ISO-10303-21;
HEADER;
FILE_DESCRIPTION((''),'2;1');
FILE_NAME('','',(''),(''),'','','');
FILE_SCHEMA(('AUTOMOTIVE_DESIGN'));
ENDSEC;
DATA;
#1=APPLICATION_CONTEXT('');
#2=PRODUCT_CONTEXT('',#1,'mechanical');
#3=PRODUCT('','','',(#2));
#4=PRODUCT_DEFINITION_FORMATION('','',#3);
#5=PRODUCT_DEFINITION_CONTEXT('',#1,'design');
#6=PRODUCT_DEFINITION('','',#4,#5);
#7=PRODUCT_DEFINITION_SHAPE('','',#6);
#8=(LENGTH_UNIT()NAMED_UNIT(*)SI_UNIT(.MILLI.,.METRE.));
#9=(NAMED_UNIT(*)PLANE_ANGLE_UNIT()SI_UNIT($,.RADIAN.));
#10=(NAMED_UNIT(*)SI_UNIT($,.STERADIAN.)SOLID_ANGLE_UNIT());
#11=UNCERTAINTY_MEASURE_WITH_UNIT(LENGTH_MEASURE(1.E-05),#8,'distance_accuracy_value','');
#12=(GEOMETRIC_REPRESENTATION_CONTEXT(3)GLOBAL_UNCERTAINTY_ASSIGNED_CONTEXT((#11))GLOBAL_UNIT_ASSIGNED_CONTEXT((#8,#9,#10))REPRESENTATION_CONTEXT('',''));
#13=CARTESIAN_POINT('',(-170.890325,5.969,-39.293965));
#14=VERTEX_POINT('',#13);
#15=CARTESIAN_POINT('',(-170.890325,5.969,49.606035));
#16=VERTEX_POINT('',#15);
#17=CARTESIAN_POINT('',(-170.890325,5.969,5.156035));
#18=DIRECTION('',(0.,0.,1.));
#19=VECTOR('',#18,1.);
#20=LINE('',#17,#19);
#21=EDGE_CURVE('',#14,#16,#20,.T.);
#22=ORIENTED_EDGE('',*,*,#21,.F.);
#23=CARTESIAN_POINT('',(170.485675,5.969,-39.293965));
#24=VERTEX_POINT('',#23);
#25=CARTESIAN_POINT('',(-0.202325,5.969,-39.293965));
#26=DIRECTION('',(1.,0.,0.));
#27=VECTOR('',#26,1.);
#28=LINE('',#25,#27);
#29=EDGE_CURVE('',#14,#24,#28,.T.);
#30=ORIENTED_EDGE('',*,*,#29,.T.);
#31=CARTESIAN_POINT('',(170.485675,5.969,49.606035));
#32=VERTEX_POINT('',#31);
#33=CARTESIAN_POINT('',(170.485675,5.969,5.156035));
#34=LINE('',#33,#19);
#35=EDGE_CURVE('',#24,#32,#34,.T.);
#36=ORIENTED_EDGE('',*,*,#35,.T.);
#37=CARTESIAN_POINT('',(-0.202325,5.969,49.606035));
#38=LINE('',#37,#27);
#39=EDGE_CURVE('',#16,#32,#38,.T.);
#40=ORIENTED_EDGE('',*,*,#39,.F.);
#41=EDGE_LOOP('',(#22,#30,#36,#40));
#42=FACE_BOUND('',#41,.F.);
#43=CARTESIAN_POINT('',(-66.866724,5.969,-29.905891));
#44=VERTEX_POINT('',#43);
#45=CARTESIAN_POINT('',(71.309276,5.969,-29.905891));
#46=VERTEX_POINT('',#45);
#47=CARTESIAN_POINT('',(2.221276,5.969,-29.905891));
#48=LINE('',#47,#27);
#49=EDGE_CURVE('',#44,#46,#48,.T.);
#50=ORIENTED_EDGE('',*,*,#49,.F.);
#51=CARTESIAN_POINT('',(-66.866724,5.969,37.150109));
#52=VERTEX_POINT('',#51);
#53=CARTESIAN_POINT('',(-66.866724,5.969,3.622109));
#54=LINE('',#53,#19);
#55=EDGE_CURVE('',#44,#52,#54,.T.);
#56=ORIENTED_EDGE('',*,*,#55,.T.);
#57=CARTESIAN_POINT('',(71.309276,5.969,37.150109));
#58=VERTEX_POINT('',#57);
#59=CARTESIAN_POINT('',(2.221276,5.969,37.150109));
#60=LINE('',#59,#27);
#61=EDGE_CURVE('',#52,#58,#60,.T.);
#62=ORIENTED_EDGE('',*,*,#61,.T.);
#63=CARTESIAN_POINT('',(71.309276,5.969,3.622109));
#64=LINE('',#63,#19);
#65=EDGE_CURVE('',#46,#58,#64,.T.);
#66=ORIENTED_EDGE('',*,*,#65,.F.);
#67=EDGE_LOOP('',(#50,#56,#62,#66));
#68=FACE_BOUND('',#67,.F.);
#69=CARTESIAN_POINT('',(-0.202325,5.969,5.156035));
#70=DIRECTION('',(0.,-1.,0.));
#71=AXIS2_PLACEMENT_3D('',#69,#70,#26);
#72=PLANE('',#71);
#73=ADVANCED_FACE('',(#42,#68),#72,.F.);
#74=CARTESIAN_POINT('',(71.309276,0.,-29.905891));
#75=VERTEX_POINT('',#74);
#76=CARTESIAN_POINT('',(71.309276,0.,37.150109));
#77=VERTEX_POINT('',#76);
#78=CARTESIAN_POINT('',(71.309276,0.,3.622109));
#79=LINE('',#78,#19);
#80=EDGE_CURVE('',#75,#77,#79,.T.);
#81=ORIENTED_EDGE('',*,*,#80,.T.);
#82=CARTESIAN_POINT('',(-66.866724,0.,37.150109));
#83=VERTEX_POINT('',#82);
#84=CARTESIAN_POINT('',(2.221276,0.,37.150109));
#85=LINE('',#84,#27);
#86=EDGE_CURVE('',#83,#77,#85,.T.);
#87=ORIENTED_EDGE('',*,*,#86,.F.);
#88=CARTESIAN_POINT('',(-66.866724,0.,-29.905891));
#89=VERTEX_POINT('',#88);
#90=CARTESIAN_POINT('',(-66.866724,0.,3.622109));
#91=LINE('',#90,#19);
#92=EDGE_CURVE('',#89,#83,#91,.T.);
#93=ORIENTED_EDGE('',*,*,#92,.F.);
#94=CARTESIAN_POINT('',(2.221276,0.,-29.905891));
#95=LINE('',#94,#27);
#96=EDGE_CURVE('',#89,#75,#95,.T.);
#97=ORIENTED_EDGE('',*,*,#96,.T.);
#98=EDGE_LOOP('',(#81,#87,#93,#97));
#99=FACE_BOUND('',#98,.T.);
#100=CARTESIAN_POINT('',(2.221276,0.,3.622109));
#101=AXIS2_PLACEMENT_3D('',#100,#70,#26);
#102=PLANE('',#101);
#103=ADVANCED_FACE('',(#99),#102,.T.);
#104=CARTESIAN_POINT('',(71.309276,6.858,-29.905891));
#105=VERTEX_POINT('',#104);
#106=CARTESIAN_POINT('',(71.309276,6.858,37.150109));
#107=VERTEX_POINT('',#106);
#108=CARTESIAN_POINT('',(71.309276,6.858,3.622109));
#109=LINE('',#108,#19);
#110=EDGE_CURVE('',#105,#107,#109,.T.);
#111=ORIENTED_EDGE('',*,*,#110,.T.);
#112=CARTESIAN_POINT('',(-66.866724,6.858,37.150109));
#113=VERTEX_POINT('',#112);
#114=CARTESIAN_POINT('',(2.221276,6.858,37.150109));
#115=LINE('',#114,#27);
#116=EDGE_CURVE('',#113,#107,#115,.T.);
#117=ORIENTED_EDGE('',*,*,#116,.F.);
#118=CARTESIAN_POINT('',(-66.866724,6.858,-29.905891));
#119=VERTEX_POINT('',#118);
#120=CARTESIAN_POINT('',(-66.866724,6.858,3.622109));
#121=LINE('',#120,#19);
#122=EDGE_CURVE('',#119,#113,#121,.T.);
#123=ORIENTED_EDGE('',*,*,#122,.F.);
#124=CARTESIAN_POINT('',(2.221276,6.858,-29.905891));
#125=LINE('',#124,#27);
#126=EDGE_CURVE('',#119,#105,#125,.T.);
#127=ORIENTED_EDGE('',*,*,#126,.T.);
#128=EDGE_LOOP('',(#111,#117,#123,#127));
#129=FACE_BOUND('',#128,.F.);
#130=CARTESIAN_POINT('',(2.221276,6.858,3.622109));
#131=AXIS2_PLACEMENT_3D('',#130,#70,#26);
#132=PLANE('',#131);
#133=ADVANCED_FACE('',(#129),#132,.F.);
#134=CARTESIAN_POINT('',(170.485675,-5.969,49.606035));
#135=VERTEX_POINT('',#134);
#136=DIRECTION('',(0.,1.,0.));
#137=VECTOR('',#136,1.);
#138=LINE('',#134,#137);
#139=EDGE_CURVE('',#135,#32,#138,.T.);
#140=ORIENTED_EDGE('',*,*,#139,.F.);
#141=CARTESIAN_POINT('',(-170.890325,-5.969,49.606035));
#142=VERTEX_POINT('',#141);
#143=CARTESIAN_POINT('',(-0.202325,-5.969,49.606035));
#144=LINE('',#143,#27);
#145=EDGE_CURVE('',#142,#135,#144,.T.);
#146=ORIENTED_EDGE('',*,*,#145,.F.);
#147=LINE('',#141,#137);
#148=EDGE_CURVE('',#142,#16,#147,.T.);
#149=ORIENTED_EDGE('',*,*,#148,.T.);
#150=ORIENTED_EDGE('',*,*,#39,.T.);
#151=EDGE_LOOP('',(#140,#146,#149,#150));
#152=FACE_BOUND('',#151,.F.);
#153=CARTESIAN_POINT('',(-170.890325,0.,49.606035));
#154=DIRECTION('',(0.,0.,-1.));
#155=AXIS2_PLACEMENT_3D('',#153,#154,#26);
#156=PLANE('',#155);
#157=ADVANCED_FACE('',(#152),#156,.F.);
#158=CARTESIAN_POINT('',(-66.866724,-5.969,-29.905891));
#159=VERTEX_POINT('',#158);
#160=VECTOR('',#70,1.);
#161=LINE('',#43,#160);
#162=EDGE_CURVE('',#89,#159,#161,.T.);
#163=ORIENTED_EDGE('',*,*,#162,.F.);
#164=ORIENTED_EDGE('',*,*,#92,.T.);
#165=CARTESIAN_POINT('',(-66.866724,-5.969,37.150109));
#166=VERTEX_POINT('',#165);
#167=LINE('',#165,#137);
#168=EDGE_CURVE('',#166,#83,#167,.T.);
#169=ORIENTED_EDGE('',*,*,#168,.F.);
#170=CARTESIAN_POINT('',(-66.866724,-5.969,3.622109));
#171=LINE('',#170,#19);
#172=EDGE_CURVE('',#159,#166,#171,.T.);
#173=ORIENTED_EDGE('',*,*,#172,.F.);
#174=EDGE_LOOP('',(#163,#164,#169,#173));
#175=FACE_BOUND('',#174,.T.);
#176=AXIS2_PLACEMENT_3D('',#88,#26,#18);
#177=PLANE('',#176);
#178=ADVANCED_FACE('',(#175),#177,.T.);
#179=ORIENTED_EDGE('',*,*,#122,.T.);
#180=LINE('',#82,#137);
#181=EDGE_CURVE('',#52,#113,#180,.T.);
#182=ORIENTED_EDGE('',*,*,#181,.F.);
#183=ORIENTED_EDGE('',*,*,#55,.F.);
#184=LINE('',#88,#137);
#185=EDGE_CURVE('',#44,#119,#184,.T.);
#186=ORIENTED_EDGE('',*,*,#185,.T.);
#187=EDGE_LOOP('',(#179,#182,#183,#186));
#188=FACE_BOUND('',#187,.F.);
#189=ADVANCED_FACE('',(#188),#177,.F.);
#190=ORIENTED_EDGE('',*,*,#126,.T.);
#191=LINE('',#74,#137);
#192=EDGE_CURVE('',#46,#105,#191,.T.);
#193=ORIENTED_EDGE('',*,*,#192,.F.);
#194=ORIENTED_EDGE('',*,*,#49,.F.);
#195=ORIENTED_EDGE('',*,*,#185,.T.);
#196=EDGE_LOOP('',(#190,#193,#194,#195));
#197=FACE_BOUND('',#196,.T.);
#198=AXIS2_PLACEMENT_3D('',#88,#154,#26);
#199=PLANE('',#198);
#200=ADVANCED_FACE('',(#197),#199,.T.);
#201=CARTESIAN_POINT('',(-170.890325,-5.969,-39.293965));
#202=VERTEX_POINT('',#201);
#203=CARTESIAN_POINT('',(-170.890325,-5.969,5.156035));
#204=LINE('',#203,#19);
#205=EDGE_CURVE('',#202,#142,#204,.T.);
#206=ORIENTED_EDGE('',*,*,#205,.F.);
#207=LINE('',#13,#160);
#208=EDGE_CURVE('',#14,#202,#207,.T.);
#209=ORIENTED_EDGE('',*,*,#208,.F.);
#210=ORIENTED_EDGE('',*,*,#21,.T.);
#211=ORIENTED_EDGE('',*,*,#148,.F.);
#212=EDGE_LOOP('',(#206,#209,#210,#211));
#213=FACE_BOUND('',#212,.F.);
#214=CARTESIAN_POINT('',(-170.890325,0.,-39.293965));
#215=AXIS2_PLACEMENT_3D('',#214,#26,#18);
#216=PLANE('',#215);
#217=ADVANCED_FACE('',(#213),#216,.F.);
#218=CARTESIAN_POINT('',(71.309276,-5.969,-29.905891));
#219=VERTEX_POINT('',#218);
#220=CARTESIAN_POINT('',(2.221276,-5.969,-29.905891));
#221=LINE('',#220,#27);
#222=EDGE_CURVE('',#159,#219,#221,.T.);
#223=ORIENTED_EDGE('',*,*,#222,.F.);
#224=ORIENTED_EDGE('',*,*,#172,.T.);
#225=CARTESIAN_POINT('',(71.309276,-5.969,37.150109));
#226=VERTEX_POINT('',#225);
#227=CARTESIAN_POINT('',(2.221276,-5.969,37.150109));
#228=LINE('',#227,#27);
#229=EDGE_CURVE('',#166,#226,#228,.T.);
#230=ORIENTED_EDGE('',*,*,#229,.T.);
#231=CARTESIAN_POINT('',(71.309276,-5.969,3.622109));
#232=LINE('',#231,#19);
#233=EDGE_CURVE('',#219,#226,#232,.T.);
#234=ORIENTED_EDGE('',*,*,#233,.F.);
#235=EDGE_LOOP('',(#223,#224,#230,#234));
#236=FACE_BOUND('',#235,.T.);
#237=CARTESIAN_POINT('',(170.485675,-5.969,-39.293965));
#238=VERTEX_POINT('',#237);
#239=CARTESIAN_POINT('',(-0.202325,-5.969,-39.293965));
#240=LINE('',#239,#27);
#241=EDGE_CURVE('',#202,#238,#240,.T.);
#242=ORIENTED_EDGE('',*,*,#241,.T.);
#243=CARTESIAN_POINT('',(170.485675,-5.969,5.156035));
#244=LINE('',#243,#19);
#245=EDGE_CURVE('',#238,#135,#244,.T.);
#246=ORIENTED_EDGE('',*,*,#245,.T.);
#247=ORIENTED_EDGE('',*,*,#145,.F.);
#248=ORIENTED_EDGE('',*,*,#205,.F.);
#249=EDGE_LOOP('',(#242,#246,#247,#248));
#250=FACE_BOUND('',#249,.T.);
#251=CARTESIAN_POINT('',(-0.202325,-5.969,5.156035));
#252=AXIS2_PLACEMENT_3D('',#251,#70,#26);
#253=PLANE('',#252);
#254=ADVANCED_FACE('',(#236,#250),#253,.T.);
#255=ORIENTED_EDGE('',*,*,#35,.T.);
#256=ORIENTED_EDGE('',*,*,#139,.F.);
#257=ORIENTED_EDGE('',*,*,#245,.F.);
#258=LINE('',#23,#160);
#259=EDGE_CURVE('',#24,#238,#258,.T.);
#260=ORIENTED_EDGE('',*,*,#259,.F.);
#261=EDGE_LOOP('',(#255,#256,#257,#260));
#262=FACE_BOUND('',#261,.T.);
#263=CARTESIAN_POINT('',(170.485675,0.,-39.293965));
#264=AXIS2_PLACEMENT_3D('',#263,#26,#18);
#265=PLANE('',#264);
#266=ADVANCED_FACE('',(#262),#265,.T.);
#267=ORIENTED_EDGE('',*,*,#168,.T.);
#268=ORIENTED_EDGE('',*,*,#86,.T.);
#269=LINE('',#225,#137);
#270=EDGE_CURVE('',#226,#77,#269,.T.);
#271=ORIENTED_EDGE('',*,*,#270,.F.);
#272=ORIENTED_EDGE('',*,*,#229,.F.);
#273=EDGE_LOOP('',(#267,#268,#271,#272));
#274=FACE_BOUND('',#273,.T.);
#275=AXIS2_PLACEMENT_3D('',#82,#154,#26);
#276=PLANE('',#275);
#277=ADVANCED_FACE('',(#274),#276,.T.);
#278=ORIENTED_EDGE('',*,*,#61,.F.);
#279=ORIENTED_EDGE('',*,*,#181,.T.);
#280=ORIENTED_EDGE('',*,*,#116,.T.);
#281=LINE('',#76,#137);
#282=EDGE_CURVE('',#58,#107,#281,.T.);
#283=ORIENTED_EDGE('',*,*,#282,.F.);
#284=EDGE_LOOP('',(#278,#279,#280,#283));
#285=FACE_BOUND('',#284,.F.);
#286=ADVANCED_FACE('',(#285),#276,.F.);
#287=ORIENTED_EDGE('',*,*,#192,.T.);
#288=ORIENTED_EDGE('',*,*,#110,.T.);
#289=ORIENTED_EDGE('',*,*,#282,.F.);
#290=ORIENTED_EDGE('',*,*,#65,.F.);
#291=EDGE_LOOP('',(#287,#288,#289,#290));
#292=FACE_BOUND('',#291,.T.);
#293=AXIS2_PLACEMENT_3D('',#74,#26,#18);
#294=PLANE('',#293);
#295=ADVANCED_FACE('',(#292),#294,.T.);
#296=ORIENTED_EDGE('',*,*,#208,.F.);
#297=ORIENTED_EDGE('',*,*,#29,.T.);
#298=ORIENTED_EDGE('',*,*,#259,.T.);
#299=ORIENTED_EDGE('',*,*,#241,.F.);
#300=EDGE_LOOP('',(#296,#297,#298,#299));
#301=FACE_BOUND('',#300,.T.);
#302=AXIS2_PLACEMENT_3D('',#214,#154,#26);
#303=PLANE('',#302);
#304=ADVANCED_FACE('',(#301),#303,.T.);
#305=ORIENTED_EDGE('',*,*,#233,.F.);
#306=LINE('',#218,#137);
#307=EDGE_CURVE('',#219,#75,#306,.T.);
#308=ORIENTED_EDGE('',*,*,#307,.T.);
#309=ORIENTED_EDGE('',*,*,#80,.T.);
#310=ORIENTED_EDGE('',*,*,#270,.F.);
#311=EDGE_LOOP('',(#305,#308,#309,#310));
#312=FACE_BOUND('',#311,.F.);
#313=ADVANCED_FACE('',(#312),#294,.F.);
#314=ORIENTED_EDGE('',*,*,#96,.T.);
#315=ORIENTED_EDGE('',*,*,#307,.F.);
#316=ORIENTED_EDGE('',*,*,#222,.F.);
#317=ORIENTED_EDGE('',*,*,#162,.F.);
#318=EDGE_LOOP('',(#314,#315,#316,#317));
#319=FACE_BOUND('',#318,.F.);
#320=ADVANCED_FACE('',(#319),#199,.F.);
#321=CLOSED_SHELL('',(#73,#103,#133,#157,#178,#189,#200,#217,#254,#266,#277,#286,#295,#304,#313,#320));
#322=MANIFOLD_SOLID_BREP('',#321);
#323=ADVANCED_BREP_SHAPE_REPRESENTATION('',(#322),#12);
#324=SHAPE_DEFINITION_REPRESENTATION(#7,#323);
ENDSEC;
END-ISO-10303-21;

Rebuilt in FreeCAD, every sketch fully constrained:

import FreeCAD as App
import Part
import Sketcher

V = App.Vector
Q = App.Units.Quantity

doc = App.newDocument("Part")
body = doc.addObject("PartDesign::Body", "Body")

# Sketch on XZ plane
sketch1 = body.newObject("Sketcher::SketchObject", "Sketch")
sketch1.AttachmentSupport = (doc.getObject("XZ_Plane"), [""])
sketch1.MapMode = "FlatFace"
sketch1.addGeometry([
    Part.LineSegment(V(-170.890325, 49.606035, 0), V(-170.890325, -39.293965, 0)),  # 0
    Part.LineSegment(V(-170.890325, -39.293965, 0), V(170.485675, -39.293965, 0)),  # 1
    Part.LineSegment(V(170.485675, -39.293965, 0), V(170.485675, 49.606035, 0)),  # 2
    Part.LineSegment(V(170.485675, 49.606035, 0), V(-170.890325, 49.606035, 0)),  # 3
    Part.LineSegment(V(71.309276, -29.905891, 0), V(-66.866724, -29.905891, 0)),  # 4
    Part.LineSegment(V(-66.866724, -29.905891, 0), V(-66.866724, 37.150109, 0)),  # 5
    Part.LineSegment(V(-66.866724, 37.150109, 0), V(71.309276, 37.150109, 0)),  # 6
    Part.LineSegment(V(71.309276, 37.150109, 0), V(71.309276, -29.905891, 0)),  # 7
], False)
sketch1.addConstraint([
    Sketcher.Constraint("Coincident", 0, 2, 1, 1),
    Sketcher.Constraint("Coincident", 1, 2, 2, 1),
    Sketcher.Constraint("Coincident", 2, 2, 3, 1),
    Sketcher.Constraint("Coincident", 3, 2, 0, 1),
    Sketcher.Constraint("Coincident", 4, 2, 5, 1),
    Sketcher.Constraint("Coincident", 5, 2, 6, 1),
    Sketcher.Constraint("Coincident", 6, 2, 7, 1),
    Sketcher.Constraint("Coincident", 7, 2, 4, 1),
    Sketcher.Constraint("Vertical", 0),
    Sketcher.Constraint("Horizontal", 1),
    Sketcher.Constraint("Vertical", 2),
    Sketcher.Constraint("Horizontal", 3),
    Sketcher.Constraint("Horizontal", 4),
    Sketcher.Constraint("Vertical", 5),
    Sketcher.Constraint("Horizontal", 6),
    Sketcher.Constraint("Vertical", 7),
    Sketcher.Constraint("DistanceY", 0, 2, 0, 1, Q("3.5 in")),
    Sketcher.Constraint("DistanceX", 1, 1, 1, 2, Q("13.44 in")),
    Sketcher.Constraint("DistanceX", 4, 2, 4, 1, Q("5.44 in")),
    Sketcher.Constraint("DistanceY", 5, 1, 5, 2, Q("2.64 in")),
    Sketcher.Constraint("DistanceX", 0, 2, 4, 2, Q("104.023601 mm")),
    Sketcher.Constraint("DistanceY", 4, 2, -1, 1, Q("29.905891 mm")),
    Sketcher.Constraint("DistanceX", 0, 2, -1, 1, Q("170.890325 mm")),
    Sketcher.Constraint("DistanceY", 0, 2, -1, 1, Q("39.293965 mm")),
])
pad1 = body.newObject("PartDesign::Pad", "Pad")
pad1.Profile = sketch1
pad1.Length = Q("0.47 in")
pad1.Midplane = True

# Sketch on XZ plane
sketch2 = body.newObject("Sketcher::SketchObject", "Sketch001")
sketch2.AttachmentSupport = (doc.getObject("XZ_Plane"), [""])
sketch2.MapMode = "FlatFace"
sketch2.addGeometry([
    Part.LineSegment(V(-66.866724, 37.150109, 0), V(-66.866724, -29.905891, 0)),
    Part.LineSegment(V(-66.866724, -29.905891, 0), V(71.309276, -29.905891, 0)),
    Part.LineSegment(V(71.309276, -29.905891, 0), V(71.309276, 37.150109, 0)),
    Part.LineSegment(V(71.309276, 37.150109, 0), V(-66.866724, 37.150109, 0)),
], False)
sketch2.addConstraint([
    Sketcher.Constraint("Coincident", 0, 2, 1, 1),
    Sketcher.Constraint("Coincident", 1, 2, 2, 1),
    Sketcher.Constraint("Coincident", 2, 2, 3, 1),
    Sketcher.Constraint("Coincident", 3, 2, 0, 1),
    Sketcher.Constraint("Vertical", 0),
    Sketcher.Constraint("Horizontal", 1),
    Sketcher.Constraint("Vertical", 2),
    Sketcher.Constraint("Horizontal", 3),
    Sketcher.Constraint("DistanceX", 1, 1, 1, 2, Q("5.44 in")),
    Sketcher.Constraint("DistanceY", 0, 2, 0, 1, Q("2.64 in")),
    Sketcher.Constraint("DistanceY", 0, 2, -1, 1, Q("29.905891 mm")),
    Sketcher.Constraint("DistanceX", 0, 2, -1, 1, Q("66.866724 mm")),
])
pad2 = body.newObject("PartDesign::Pad", "Pad001")
pad2.Profile = sketch2
pad2.Length = Q("0.27 in")
pad2.Reversed = True

doc.recompute()
